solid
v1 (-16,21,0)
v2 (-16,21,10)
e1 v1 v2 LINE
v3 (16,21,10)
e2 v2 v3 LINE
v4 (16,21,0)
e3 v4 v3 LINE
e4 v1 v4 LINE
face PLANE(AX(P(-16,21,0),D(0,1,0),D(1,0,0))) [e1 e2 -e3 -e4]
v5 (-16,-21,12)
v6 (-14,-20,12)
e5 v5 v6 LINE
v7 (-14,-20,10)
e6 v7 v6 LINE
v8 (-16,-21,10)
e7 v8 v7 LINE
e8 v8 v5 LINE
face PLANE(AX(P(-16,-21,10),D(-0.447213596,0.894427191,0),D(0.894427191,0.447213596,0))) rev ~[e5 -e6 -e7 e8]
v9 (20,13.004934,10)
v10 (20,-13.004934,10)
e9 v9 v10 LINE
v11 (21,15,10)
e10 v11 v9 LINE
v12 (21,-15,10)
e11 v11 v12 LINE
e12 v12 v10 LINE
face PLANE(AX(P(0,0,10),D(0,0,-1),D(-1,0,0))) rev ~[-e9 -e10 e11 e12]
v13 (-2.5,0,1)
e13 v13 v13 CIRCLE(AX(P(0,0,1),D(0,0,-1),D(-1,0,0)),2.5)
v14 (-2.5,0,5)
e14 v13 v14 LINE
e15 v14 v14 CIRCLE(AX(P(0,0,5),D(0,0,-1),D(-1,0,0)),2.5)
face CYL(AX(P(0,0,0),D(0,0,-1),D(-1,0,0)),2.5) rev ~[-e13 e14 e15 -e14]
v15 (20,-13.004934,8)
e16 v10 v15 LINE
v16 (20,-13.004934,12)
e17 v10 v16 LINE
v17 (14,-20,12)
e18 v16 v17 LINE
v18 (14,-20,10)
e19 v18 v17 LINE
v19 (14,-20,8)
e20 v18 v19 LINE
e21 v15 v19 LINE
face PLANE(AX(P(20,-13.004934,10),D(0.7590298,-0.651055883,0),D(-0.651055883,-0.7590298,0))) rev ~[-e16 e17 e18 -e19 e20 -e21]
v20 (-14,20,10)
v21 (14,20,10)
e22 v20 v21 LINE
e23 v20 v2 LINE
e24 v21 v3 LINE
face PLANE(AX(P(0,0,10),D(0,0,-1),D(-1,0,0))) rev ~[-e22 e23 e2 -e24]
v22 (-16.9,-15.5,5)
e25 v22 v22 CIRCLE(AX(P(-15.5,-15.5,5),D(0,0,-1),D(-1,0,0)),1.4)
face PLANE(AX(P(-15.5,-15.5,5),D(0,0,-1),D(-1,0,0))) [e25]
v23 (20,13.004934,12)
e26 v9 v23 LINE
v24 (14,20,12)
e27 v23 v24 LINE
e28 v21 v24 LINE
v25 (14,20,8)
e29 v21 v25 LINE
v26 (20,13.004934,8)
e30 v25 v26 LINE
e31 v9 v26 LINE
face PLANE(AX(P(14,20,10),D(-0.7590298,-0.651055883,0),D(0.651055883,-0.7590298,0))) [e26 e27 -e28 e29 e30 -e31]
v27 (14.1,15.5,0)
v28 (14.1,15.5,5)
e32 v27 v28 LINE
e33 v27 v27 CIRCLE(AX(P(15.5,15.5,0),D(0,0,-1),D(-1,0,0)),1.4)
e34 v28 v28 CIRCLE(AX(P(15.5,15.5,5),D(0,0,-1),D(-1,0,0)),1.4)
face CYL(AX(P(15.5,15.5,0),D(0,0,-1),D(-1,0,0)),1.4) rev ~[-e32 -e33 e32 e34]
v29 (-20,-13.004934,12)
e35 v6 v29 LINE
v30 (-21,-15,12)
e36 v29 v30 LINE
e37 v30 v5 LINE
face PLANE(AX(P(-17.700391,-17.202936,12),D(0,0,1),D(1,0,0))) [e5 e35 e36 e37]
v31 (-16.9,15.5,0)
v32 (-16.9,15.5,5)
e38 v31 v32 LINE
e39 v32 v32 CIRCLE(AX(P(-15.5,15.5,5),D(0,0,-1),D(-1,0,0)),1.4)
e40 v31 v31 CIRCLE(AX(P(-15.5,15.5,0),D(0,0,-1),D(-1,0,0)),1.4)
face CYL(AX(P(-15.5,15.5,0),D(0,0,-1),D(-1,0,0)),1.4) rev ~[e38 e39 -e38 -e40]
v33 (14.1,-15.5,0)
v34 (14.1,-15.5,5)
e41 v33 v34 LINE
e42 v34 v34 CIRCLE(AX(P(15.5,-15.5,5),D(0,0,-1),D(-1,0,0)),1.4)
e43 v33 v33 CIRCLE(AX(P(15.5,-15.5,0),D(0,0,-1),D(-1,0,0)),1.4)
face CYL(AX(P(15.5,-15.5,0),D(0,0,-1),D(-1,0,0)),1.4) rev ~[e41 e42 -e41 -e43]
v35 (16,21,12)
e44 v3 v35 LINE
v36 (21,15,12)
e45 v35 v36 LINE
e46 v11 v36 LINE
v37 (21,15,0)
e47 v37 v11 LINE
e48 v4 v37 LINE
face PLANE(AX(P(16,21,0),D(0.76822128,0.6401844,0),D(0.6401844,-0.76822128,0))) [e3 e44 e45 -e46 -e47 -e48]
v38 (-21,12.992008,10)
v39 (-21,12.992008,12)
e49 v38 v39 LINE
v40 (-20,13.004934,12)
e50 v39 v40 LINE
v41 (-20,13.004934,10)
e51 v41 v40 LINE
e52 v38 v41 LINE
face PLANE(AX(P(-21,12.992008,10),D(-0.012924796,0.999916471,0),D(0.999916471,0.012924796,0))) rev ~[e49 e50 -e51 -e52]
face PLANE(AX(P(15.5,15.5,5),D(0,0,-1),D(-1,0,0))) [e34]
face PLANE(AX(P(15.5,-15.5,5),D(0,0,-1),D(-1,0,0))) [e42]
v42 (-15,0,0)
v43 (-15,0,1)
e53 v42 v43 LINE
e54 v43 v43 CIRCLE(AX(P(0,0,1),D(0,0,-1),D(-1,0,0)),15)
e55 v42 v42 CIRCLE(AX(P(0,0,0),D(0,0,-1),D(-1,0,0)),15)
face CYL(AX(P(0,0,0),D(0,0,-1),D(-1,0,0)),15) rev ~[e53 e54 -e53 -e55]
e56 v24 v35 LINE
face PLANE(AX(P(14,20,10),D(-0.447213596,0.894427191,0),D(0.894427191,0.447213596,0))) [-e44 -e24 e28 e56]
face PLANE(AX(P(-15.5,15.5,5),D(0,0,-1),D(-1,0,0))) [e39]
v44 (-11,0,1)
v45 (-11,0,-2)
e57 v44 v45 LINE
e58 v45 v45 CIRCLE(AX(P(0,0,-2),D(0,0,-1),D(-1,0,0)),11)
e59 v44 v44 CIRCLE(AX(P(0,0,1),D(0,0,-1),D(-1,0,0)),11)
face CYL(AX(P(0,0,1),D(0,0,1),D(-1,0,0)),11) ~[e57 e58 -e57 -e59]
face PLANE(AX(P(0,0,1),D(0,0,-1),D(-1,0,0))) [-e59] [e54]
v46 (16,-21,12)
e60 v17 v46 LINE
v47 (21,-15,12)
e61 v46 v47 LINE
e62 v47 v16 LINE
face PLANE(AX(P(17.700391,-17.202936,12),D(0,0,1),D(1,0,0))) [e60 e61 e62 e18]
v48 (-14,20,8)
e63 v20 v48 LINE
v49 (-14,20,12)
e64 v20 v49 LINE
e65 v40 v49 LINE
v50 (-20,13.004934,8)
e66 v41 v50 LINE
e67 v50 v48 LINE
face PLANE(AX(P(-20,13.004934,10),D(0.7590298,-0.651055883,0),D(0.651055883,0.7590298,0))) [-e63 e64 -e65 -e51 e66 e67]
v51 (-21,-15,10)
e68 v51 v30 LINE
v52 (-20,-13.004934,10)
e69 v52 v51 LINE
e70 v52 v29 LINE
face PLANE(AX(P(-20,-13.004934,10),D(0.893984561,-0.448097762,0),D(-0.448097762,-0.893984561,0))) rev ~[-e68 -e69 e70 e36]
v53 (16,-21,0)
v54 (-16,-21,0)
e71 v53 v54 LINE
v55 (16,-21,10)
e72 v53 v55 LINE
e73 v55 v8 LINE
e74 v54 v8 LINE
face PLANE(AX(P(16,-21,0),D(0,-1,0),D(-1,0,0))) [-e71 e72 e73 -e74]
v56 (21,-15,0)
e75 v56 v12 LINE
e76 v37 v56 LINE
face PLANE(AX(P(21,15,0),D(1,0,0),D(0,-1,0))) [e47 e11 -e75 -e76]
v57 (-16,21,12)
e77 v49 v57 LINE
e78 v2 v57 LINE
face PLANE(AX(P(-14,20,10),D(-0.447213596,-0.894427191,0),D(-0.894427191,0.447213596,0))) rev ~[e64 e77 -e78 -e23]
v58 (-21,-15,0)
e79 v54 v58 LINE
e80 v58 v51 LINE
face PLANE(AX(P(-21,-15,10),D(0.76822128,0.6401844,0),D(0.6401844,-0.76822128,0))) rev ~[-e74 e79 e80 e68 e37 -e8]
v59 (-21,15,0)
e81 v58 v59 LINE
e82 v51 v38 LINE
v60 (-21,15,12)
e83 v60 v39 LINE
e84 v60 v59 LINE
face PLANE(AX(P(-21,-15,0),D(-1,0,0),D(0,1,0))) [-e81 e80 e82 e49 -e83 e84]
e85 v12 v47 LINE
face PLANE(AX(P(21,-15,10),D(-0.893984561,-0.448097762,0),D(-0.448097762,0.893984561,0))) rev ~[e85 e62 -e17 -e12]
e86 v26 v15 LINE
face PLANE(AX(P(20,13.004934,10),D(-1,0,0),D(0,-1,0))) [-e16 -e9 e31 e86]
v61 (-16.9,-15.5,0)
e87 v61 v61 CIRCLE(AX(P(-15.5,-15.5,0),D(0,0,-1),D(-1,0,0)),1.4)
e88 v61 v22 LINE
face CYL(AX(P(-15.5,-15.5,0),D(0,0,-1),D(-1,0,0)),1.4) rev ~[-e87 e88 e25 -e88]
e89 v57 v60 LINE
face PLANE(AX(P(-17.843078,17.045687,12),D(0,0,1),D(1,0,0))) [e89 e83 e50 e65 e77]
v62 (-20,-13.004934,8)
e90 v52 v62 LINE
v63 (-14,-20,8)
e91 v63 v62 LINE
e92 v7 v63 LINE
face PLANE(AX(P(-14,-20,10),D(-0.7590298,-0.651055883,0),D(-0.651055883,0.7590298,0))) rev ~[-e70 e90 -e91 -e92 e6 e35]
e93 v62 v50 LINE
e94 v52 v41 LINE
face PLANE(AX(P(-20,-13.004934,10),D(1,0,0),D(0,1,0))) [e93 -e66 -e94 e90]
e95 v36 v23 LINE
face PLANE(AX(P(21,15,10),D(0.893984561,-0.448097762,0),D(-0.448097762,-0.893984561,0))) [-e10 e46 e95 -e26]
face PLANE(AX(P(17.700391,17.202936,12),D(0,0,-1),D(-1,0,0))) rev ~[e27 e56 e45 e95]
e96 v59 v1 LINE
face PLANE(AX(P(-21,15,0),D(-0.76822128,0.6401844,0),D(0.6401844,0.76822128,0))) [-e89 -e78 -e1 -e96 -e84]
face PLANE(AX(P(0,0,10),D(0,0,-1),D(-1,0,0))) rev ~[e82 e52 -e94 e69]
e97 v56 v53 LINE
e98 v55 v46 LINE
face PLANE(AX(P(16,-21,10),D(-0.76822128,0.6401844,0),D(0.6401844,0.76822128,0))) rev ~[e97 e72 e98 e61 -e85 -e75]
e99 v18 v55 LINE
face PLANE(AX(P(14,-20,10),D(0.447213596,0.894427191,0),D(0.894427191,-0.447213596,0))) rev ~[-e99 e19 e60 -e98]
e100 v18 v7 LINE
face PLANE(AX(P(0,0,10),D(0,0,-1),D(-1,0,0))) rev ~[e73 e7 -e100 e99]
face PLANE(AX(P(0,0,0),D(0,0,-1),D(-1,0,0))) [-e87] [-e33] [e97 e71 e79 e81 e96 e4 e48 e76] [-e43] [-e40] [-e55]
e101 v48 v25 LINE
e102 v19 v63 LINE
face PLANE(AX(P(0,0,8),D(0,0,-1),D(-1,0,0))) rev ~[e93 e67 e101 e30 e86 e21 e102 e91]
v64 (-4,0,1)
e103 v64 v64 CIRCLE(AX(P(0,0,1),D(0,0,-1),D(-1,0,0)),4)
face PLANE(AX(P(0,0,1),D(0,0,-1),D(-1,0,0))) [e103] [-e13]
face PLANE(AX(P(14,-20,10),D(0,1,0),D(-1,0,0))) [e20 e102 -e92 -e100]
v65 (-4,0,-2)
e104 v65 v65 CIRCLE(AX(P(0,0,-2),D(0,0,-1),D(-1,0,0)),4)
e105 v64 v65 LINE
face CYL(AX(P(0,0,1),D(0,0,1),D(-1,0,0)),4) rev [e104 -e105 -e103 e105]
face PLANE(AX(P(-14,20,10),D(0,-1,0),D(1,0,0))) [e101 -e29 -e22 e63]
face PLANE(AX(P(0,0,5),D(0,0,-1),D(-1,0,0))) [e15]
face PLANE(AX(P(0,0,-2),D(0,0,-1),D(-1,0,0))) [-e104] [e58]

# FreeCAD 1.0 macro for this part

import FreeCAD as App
import Part
import Sketcher

V = App.Vector


def add_polygon(sketch, points):
    """Adds a closed chain of lines whose ends are joined by coincident constraints."""
    first, n = sketch.GeometryCount, len(points)
    for a, b in zip(points, points[1:] + points[:1]):
        sketch.addGeometry(Part.LineSegment(App.Vector(*a, 0), App.Vector(*b, 0)), False)
    for i in range(n):
        sketch.addConstraint(Sketcher.Constraint("Coincident", first + i, 2, first + (i + 1) % n, 1))

doc = App.newDocument("Part")
body = doc.addObject("PartDesign::Body", "Body")

# Sketch on XY plane
sketch1 = body.newObject("Sketcher::SketchObject", "Sketch")
sketch1.AttachmentSupport = (doc.getObject("XY_Plane"), [""])
sketch1.MapMode = "FlatFace"
add_polygon(sketch1, [(16, 21), (-16, 21), (-21, 15), (-21, -15), (-16, -21), (16, -21), (21, -15), (21, 15)])  # lines 0-7
sketch1.addConstraint([
    Sketcher.Constraint("Horizontal", 0),
    Sketcher.Constraint("Vertical", 2),
    Sketcher.Constraint("Horizontal", 4),
    Sketcher.Constraint("Vertical", 6),
    Sketcher.Constraint("Symmetric", 0, 2, 4, 2, -1, 1),
    Sketcher.Constraint("Symmetric", 1, 2, 5, 2, -1, 1),
    Sketcher.Constraint("Parallel", 3, 7),
    Sketcher.Constraint("Horizontal", 2, 2, 5, 2),
    Sketcher.Constraint("Horizontal", 1, 2, 6, 2),
    Sketcher.Constraint("Vertical", 0, 2, 3, 2),
    Sketcher.Constraint("DistanceX", 0, 2, 0, 1, 32.0),
    Sketcher.Constraint("DistanceY", 2, 2, 2, 1, 30.0),
    Sketcher.Constraint("DistanceY", -1, 1, 0, 2, 21.0),
    Sketcher.Constraint("DistanceX", 1, 2, -1, 1, 21.0),
])
pad1 = body.newObject("PartDesign::Pad", "Pad")
pad1.Profile = sketch1
pad1.Length = 10

# Sketch on XY plane
sketch2 = body.newObject("Sketcher::SketchObject", "Sketch001")
sketch2.AttachmentSupport = (doc.getObject("XY_Plane"), [""])
sketch2.MapMode = "FlatFace"
sketch2.AttachmentOffset = App.Placement(V(0, 0, 10), App.Rotation())
add_polygon(sketch2, [(14, 20), (-14, 20), (-20, 13.004934), (-20, -13.004934), (-14, -20), (14, -20), (20, -13.004934), (20, 13.004934)])  # lines 0-7
sketch2.addConstraint([
    Sketcher.Constraint("Horizontal", 0),
    Sketcher.Constraint("Vertical", 2),
    Sketcher.Constraint("Horizontal", 4),
    Sketcher.Constraint("Vertical", 6),
    Sketcher.Constraint("Symmetric", 0, 2, 4, 2, -1, 1),
    Sketcher.Constraint("Symmetric", 1, 2, 5, 2, -1, 1),
    Sketcher.Constraint("Parallel", 3, 7),
    Sketcher.Constraint("Horizontal", 2, 2, 5, 2),
    Sketcher.Constraint("Horizontal", 1, 2, 6, 2),
    Sketcher.Constraint("Vertical", 0, 2, 3, 2),
    Sketcher.Constraint("DistanceX", 0, 2, 0, 1, 28.0),
    Sketcher.Constraint("DistanceY", -1, 1, 0, 2, 20.0),
    Sketcher.Constraint("DistanceX", 1, 2, -1, 1, 20.0),
    Sketcher.Constraint("Distance", 1, 9.215799),
])
pocket1 = body.newObject("PartDesign::Pocket", "Pocket")
pocket1.Profile = sketch2
pocket1.Length = 2

# Sketch on XY plane
sketch3 = body.newObject("Sketcher::SketchObject", "Sketch002")
sketch3.AttachmentSupport = (doc.getObject("XY_Plane"), [""])
sketch3.MapMode = "FlatFace"
sketch3.AttachmentOffset = App.Placement(V(0, 0, 10), App.Rotation())
add_polygon(sketch3, [(-16, -21), (-14, -20), (-20, -13.004934), (-21, -15)])  # lines 0-3
add_polygon(sketch3, [(-20, 13.004934), (-14, 20), (-16, 21), (-21, 15), (-21, 12.992008)])  # lines 4-8
add_polygon(sketch3, [(21, 15), (16, 21), (14, 20), (20, 13.004934)])  # lines 9-12
add_polygon(sketch3, [(16, -21), (21, -15), (20, -13.004934), (14, -20)])  # lines 13-16
sketch3.addConstraint([
    Sketcher.Constraint("Vertical", 7),
    Sketcher.Constraint("Symmetric", 3, 2, 9, 2, -1, 1),
    Sketcher.Constraint("Symmetric", 0, 2, 10, 2, -1, 1),
    Sketcher.Constraint("Symmetric", 1, 2, 11, 2, -1, 1),
    Sketcher.Constraint("Symmetric", 2, 2, 12, 2, -1, 1),
    Sketcher.Constraint("Symmetric", 6, 2, 13, 2, -1, 1),
    Sketcher.Constraint("Symmetric", 8, 2, 14, 2, -1, 1),
    Sketcher.Constraint("Symmetric", 4, 2, 15, 2, -1, 1),
    Sketcher.Constraint("Symmetric", 5, 2, 16, 2, -1, 1),
    Sketcher.Constraint("Symmetric", 5, 2, 9, 2, -2),
    Sketcher.Constraint("Symmetric", 4, 2, 10, 2, -2),
    Sketcher.Constraint("Symmetric", 8, 2, 11, 2, -2),
    Sketcher.Constraint("Symmetric", 6, 2, 12, 2, -2),
    Sketcher.Constraint("DistanceX", 0, 2, -1, 1, 14.0),
    Sketcher.Constraint("DistanceY", 0, 2, -1, 1, 20.0),
    Sketcher.Constraint("DistanceX", 1, 2, -1, 1, 20.0),
    Sketcher.Constraint("DistanceX", 2, 2, -1, 1, 21.0),
    Sketcher.Constraint("DistanceY", 2, 2, -1, 1, 15.0),
    Sketcher.Constraint("DistanceX", 3, 2, -1, 1, 16.0),
    Sketcher.Constraint("DistanceY", 3, 2, -1, 1, 21.0),
    Sketcher.Constraint("Distance", 1, 9.215799),
    Sketcher.Constraint("DistanceY", 7, 2, 7, 1, 2.007992),
])
pad2 = body.newObject("PartDesign::Pad", "Pad001")
pad2.Profile = sketch3
pad2.Length = 2

# Sketch on XY plane
sketch4 = body.newObject("Sketcher::SketchObject", "Sketch003")
sketch4.AttachmentSupport = (doc.getObject("XY_Plane"), [""])
sketch4.MapMode = "FlatFace"
sketch4.addGeometry([
    Part.Circle(V(-15.5, 15.5, 0), V(0, 0, 1), 1.4),  # 0
    Part.Circle(V(15.5, 15.5, 0), V(0, 0, 1), 1.4),  # 1
    Part.Circle(V(-15.5, -15.5, 0), V(0, 0, 1), 1.4),  # 2
    Part.Circle(V(15.5, -15.5, 0), V(0, 0, 1), 1.4),  # 3
    Part.Circle(V(0, 0, 0), V(0, 0, 1), 2.5),  # 4
], False)
sketch4.addConstraint([
    Sketcher.Constraint("Coincident", 4, 3, -1, 1),
    Sketcher.Constraint("Equal", 0, 1),
    Sketcher.Constraint("Equal", 1, 2),
    Sketcher.Constraint("Equal", 2, 3),
    Sketcher.Constraint("Symmetric", 1, 3, 2, 3, -1, 1),
    Sketcher.Constraint("Symmetric", 0, 3, 3, 3, -1, 1),
    Sketcher.Constraint("Symmetric", 0, 3, 1, 3, -2),
    Sketcher.Constraint("Diameter", 4, 5.0),
    Sketcher.Constraint("Diameter", 0, 2.8),
    Sketcher.Constraint("DistanceX", 0, 3, 1, 3, 31.0),
    Sketcher.Constraint("DistanceY", 2, 3, 0, 3, 31.0),
])
pocket2 = body.newObject("PartDesign::Pocket", "Pocket001")
pocket2.Profile = sketch4
pocket2.Length = 5
pocket2.Reversed = True

# Sketch on XY plane
sketch5 = body.newObject("Sketcher::SketchObject", "Sketch004")
sketch5.AttachmentSupport = (doc.getObject("XY_Plane"), [""])
sketch5.MapMode = "FlatFace"
sketch5.addGeometry(Part.Circle(V(0, 0, 0), V(0, 0, 1), 15), False)
sketch5.addConstraint([
    Sketcher.Constraint("Coincident", 0, 3, -1, 1),
    Sketcher.Constraint("Diameter", 0, 30.0),
])
pocket3 = body.newObject("PartDesign::Pocket", "Pocket002")
pocket3.Profile = sketch5
pocket3.Length = 1
pocket3.Reversed = True

# Sketch on XY plane
sketch6 = body.newObject("Sketcher::SketchObject", "Sketch005")
sketch6.AttachmentSupport = (doc.getObject("XY_Plane"), [""])
sketch6.MapMode = "FlatFace"
sketch6.AttachmentOffset = App.Placement(V(0, 0, 1), App.Rotation())
sketch6.addGeometry([
    Part.Circle(V(0, 0, 0), V(0, 0, 1), 11),
    Part.Circle(V(0, 0, 0), V(0, 0, 1), 4),
], False)
sketch6.addConstraint([
    Sketcher.Constraint("Coincident", 0, 3, -1, 1),
    Sketcher.Constraint("Coincident", 1, 3, -1, 1),
    Sketcher.Constraint("Diameter", 0, 22.0),
    Sketcher.Constraint("Diameter", 1, 8.0),
])
pad3 = body.newObject("PartDesign::Pad", "Pad002")
pad3.Profile = sketch6
pad3.Length = 3
pad3.Reversed = True

doc.recompute()
